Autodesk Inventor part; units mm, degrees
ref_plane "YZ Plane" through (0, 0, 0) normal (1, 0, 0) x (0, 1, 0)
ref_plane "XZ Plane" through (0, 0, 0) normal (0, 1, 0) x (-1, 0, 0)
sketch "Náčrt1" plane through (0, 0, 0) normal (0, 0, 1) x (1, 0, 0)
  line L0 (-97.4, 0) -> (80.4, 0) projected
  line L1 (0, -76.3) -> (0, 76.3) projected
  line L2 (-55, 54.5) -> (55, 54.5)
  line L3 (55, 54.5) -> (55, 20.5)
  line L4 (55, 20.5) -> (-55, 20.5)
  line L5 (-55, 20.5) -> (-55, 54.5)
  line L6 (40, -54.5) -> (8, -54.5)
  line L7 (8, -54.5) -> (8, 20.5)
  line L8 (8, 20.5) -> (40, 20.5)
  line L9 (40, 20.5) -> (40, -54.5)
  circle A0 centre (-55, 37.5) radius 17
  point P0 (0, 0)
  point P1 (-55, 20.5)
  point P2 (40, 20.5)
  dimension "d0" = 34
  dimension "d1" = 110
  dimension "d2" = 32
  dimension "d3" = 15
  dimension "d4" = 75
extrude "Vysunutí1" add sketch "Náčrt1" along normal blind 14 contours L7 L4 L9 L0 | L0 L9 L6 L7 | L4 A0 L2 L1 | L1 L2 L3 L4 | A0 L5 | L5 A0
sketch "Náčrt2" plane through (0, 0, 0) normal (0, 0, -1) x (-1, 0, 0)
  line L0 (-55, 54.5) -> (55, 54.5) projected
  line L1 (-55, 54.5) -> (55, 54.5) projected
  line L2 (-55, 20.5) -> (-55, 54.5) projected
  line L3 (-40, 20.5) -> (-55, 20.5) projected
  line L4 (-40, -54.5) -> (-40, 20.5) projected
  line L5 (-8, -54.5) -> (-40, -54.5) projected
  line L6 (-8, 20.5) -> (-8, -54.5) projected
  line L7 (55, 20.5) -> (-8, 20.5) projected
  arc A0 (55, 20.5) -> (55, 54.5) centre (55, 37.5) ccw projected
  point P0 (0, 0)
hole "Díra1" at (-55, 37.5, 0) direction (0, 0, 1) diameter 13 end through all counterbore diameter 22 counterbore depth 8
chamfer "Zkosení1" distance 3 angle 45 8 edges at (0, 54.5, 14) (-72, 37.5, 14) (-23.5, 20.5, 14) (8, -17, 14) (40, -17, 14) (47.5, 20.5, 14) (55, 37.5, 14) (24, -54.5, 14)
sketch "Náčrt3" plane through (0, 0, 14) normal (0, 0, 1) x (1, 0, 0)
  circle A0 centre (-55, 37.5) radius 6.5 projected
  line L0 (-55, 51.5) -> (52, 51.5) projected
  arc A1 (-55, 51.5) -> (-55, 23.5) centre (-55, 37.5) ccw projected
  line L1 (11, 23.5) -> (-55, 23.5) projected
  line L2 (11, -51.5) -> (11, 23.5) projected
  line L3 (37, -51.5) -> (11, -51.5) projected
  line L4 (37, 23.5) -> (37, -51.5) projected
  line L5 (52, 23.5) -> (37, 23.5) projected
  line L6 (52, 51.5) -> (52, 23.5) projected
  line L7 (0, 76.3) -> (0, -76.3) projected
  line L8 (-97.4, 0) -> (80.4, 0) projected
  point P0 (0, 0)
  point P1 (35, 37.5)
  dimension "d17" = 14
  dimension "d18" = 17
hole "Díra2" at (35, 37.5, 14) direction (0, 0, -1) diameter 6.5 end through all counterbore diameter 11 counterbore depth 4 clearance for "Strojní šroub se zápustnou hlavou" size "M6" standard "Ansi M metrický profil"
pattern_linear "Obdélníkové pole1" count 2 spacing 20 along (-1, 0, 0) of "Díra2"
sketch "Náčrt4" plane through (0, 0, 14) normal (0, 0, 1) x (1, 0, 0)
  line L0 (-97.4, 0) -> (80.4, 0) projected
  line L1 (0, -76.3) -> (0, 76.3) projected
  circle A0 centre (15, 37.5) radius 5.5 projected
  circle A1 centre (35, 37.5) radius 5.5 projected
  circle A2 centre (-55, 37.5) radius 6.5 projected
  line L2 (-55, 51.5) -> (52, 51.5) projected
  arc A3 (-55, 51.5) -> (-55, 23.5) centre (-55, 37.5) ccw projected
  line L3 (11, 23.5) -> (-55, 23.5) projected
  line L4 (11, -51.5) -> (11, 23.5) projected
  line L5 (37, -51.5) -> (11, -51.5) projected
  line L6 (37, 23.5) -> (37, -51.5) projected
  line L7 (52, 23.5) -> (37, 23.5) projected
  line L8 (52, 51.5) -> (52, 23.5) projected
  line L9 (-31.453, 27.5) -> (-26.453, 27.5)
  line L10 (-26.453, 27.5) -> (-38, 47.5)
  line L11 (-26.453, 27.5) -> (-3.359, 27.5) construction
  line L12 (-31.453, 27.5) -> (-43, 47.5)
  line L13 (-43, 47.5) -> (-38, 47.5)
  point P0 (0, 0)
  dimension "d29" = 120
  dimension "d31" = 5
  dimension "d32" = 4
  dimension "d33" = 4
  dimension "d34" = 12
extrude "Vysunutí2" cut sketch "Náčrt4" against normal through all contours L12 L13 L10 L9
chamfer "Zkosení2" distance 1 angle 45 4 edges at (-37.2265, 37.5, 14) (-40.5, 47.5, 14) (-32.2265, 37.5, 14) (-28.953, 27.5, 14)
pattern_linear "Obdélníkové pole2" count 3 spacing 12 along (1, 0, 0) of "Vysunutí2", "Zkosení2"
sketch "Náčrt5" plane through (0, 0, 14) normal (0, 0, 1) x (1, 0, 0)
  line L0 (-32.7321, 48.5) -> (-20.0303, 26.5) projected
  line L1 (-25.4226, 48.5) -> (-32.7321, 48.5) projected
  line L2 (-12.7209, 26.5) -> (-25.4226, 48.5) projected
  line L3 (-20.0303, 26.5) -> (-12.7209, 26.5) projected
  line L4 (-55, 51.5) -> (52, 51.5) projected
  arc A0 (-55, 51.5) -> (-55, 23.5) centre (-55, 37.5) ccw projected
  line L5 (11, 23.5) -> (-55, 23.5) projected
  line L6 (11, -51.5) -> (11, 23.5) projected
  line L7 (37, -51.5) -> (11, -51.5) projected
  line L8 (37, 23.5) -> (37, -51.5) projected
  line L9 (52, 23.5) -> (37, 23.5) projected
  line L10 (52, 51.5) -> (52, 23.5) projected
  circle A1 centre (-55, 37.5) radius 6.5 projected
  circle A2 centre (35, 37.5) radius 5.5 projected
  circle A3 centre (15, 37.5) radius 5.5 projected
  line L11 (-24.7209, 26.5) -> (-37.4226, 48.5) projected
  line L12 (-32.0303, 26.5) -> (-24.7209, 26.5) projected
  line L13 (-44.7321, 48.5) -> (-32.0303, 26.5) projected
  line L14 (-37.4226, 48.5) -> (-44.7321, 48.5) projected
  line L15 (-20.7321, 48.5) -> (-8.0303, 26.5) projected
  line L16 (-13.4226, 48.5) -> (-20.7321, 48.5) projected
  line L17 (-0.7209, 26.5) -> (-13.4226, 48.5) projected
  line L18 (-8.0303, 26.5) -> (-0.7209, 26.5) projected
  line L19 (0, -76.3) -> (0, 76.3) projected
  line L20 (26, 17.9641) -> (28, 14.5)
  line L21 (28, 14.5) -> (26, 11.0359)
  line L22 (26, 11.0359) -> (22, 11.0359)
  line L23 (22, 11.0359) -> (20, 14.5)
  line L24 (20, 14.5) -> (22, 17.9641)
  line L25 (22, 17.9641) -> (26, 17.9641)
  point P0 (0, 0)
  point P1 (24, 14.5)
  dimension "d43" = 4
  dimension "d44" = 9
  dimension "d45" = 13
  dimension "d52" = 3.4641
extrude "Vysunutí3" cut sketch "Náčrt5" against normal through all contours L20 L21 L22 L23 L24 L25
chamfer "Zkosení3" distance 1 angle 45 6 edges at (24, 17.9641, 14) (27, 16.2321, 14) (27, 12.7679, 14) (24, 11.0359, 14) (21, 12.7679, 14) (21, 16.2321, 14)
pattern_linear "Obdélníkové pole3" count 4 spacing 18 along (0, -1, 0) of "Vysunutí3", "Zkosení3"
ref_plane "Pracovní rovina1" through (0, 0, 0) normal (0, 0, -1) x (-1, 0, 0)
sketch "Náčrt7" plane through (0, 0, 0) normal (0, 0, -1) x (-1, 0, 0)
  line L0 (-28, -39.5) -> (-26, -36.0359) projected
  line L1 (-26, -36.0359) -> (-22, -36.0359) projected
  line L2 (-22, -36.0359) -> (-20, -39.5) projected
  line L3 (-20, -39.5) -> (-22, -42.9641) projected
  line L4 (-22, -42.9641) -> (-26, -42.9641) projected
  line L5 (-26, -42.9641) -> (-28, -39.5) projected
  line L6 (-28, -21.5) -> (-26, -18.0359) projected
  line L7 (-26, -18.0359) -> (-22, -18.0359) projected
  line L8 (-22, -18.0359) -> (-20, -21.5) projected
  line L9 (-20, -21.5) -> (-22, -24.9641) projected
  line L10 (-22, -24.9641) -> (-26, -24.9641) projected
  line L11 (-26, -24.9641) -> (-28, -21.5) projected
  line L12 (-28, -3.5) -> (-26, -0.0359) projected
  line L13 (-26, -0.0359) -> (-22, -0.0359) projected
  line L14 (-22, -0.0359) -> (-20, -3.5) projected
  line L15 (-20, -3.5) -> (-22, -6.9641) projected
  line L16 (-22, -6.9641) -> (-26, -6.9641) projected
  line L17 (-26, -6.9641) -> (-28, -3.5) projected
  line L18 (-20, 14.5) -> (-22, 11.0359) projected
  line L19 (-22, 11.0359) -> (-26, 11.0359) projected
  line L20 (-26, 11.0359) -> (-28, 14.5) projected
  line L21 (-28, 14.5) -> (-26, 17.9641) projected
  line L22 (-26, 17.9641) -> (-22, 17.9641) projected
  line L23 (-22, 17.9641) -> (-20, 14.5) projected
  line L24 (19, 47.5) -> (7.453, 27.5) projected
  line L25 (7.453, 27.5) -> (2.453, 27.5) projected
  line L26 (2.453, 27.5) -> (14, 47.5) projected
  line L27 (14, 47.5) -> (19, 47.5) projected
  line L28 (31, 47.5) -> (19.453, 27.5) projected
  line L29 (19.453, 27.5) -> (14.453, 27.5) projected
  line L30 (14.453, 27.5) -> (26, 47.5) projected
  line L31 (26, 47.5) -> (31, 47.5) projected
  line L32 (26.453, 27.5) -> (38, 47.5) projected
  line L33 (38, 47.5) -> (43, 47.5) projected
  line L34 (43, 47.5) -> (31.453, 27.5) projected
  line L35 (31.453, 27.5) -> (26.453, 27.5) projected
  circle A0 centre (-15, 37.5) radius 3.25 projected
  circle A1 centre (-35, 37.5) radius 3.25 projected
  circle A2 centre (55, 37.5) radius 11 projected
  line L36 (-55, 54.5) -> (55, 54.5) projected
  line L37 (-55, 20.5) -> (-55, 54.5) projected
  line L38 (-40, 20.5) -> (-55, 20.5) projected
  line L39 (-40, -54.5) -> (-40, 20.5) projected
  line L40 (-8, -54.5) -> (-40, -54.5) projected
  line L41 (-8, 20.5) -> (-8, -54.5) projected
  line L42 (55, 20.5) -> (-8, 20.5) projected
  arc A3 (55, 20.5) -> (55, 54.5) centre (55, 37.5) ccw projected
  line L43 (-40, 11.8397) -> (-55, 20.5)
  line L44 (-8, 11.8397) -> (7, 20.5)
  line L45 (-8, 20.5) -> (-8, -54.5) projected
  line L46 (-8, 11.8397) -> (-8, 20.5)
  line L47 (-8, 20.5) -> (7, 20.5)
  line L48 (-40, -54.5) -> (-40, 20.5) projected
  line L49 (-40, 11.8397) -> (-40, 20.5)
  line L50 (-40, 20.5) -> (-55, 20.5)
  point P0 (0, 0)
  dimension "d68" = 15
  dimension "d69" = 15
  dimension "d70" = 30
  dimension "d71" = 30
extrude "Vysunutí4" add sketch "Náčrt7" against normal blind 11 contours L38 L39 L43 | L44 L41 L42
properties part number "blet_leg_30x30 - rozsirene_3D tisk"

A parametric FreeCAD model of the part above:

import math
import FreeCAD as App
import Part
import Sketcher
from FreeCAD import Vector
Q = App.Units.Quantity


def edges_at(feature, points):
    """Names of the edges that pass closest to the given points."""
    edges = feature.Shape.Edges
    near = lambda p: min(range(len(edges)), key=lambda i: edges[i].distToShape(Part.Vertex(*p))[0])
    return sorted({f"Edge{near(p) + 1}" for p in points})


def add_polygon(sketch, points):
    """Adds a closed chain of lines whose ends are joined by coincident constraints."""
    first, n = sketch.GeometryCount, len(points)
    for a, b in zip(points, points[1:] + points[:1]):
        sketch.addGeometry(Part.LineSegment(App.Vector(*a, 0), App.Vector(*b, 0)), False)
    for i in range(n):
        sketch.addConstraint(Sketcher.Constraint("Coincident", first + i, 2, first + (i + 1) % n, 1))

doc = App.newDocument("Part")
body = doc.addObject("PartDesign::Body", "Body")

# Sketch on XY plane
sketch1 = body.newObject("Sketcher::SketchObject", "Sketch")
sketch1.AttachmentSupport = (doc.getObject("XY_Plane"), [""])
sketch1.MapMode = "FlatFace"
sketch1.addGeometry(Part.LineSegment(Vector(8, 20, 0), Vector(8, -54, 0)), False)
sketch1.addGeometry(Part.LineSegment(Vector(8, -54, 0), Vector(40, -54, 0)), False)
sketch1.addGeometry(Part.LineSegment(Vector(40, -54, 0), Vector(40, 20, 0)), False)
sketch1.addGeometry(Part.LineSegment(Vector(40, 20, 0), Vector(55, 20, 0)), False)
sketch1.addGeometry(Part.LineSegment(Vector(55, 20, 0), Vector(55, 54, 0)), False)
sketch1.addGeometry(Part.LineSegment(Vector(55, 54, 0), Vector(-55, 54, 0)), False)
sketch1.addGeometry(Part.ArcOfCircle(Part.Circle(Vector(-55, 38, 0), Vector(0, 0, 1), 17), math.radians(90), math.radians(270)), False)
sketch1.addGeometry(Part.LineSegment(Vector(-55, 20, 0), Vector(8, 20, 0)), False)
sketch1.addConstraint(Sketcher.Constraint("Coincident", 0, 2, 1, 1))
sketch1.addConstraint(Sketcher.Constraint("Coincident", 1, 2, 2, 1))
sketch1.addConstraint(Sketcher.Constraint("Coincident", 2, 2, 3, 1))
sketch1.addConstraint(Sketcher.Constraint("Coincident", 3, 2, 4, 1))
sketch1.addConstraint(Sketcher.Constraint("Coincident", 4, 2, 5, 1))
sketch1.addConstraint(Sketcher.Constraint("Tangent", 5, 2, 6, 1))
sketch1.addConstraint(Sketcher.Constraint("Tangent", 6, 2, 7, 1))
sketch1.addConstraint(Sketcher.Constraint("Coincident", 7, 2, 0, 1))
sketch1.addConstraint(Sketcher.Constraint("Vertical", 0))
sketch1.addConstraint(Sketcher.Constraint("Horizontal", 1))
sketch1.addConstraint(Sketcher.Constraint("Vertical", 2))
sketch1.addConstraint(Sketcher.Constraint("Horizontal", 3))
sketch1.addConstraint(Sketcher.Constraint("Vertical", 4))
sketch1.addConstraint(Sketcher.Constraint("Horizontal", 5))
sketch1.addConstraint(Sketcher.Constraint("Horizontal", 7))
sketch1.addConstraint(Sketcher.Constraint("Symmetric", 3, 2, 6, 2, -2))
sketch1.addConstraint(Sketcher.Constraint("Radius", 6, 17.0))
sketch1.addConstraint(Sketcher.Constraint("DistanceX", 1, 1, 1, 2, 32.0))
sketch1.addConstraint(Sketcher.Constraint("DistanceX", 3, 1, 3, 2, 15.0))
sketch1.addConstraint(Sketcher.Constraint("DistanceX", 5, 2, 5, 1, 110.0))
sketch1.addConstraint(Sketcher.Constraint("DistanceY", 0, 2, 0, 1, 75.0))
sketch1.addConstraint(Sketcher.Constraint("DistanceY", -1, 1, 6, 3, 37.5))
pad1 = body.newObject("PartDesign::Pad", "Pad")
pad1.Profile = sketch1
pad1.Length = 14

# Sketch on XY plane
sketch2 = body.newObject("Sketcher::SketchObject", "Sketch001")
sketch2.AttachmentSupport = (doc.getObject("XY_Plane"), [""])
sketch2.MapMode = "FlatFace"
sketch2.addGeometry(Part.Circle(Vector(-55, 38, 0), Vector(0, 0, 1), 6), False)
sketch2.addConstraint(Sketcher.Constraint("Diameter", 0, 13.0))
sketch2.addConstraint(Sketcher.Constraint("DistanceX", 0, 3, -1, 1, 55.0))
sketch2.addConstraint(Sketcher.Constraint("DistanceY", -1, 1, 0, 3, 37.5))
doc.recompute()
hole = body.newObject("PartDesign::Hole", "Hole")
hole.Profile = sketch2
hole.ThreadType = "None"
hole.Diameter = 13
hole.DepthType = "ThroughAll"
hole.HoleCutType = "Counterbore"
hole.HoleCutDiameter = 22
hole.HoleCutDepth = 8
hole.Reversed = True
doc.recompute()

chamfer = body.newObject("PartDesign::Chamfer", "Chamfer")
chamfer.Base = (hole, edges_at(hole, [
    (0, 54.5, 14),
    (-72, 37.5, 14),
    (-23.5, 20.5, 14),
    (8, -17, 14),
    (40, -17, 14),
    (47.5, 20.5, 14),
    (55, 37.5, 14),
    (24, -54.5, 14),
]))
chamfer.Size = 3

# Sketch on XY plane
sketch3 = body.newObject("Sketcher::SketchObject", "Sketch002")
sketch3.AttachmentSupport = (doc.getObject("XY_Plane"), [""])
sketch3.MapMode = "FlatFace"
sketch3.AttachmentOffset = App.Placement(Vector(0, 0, 14), App.Rotation())
sketch3.addGeometry(Part.Circle(Vector(35, 37.5, 0), Vector(0, 0, 1), 3.2), False)
sketch3.addConstraint(Sketcher.Constraint("Diameter", 0, 6.5))
sketch3.addConstraint(Sketcher.Constraint("DistanceX", -1, 1, 0, 3, 35.0))
sketch3.addConstraint(Sketcher.Constraint("DistanceY", -1, 1, 0, 3, 37.5))
doc.recompute()
hole2 = body.newObject("PartDesign::Hole", "Hole001")
hole2.Profile = sketch3
hole2.ThreadType = "None"
hole2.Diameter = 6.5
hole2.DepthType = "ThroughAll"
hole2.HoleCutType = "Counterbore"
hole2.HoleCutDiameter = 11
hole2.HoleCutDepth = 4
doc.recompute()

linearpattern = body.newObject("PartDesign::LinearPattern", "LinearPattern")
linearpattern.Originals = [hole2]
linearpattern.Direction = (doc.getObject("X_Axis"), [""])
linearpattern.Mode = "offset"
linearpattern.Offset = 20
linearpattern.Occurrences = 2
linearpattern.Reversed = True
body.Tip = linearpattern

# Sketch on XY plane
sketch4 = body.newObject("Sketcher::SketchObject", "Sketch003")
sketch4.AttachmentSupport = (doc.getObject("XY_Plane"), [""])
sketch4.MapMode = "FlatFace"
sketch4.AttachmentOffset = App.Placement(Vector(0, 0, 14), App.Rotation())
add_polygon(sketch4, [(-43, 48), (-31, 28), (-26, 28), (-38, 48)])  # lines 0-3
sketch4.addConstraint(Sketcher.Constraint("Horizontal", 1))
sketch4.addConstraint(Sketcher.Constraint("Horizontal", 3))
sketch4.addConstraint(Sketcher.Constraint("Parallel", 0, 2))
sketch4.addConstraint(Sketcher.Constraint("DistanceX", 1, 1, 1, 2, 5.0))
sketch4.addConstraint(Sketcher.Constraint("Angle", 2, Q("120 deg")))
sketch4.addConstraint(Sketcher.Constraint("DistanceX", 2, 2, -1, 1, 38.0))
sketch4.addConstraint(Sketcher.Constraint("DistanceY", 0, 2, 2, 2, 20.0))
sketch4.addConstraint(Sketcher.Constraint("DistanceY", -1, 1, 0, 2, 27.5))
pocket1 = body.newObject("PartDesign::Pocket", "Pocket")
pocket1.Profile = sketch4
pocket1.Type = "ThroughAll"
doc.recompute()

chamfer2 = body.newObject("PartDesign::Chamfer", "Chamfer001")
chamfer2.Base = (pocket1, edges_at(pocket1, [
    (-37.227, 37.5, 14),
    (-40.5, 47.5, 14),
    (-32.227, 37.5, 14),
    (-28.953, 27.5, 14),
]))
chamfer2.Size = 1
doc.recompute()

linearpattern2 = body.newObject("PartDesign::LinearPattern", "LinearPattern001")
linearpattern2.Originals = [pocket1, chamfer2]
linearpattern2.Direction = (doc.getObject("X_Axis"), [""])
linearpattern2.Mode = "offset"
linearpattern2.Offset = 12
linearpattern2.Occurrences = 3
body.Tip = linearpattern2

# Sketch on XY plane
sketch5 = body.newObject("Sketcher::SketchObject", "Sketch004")
sketch5.AttachmentSupport = (doc.getObject("XY_Plane"), [""])
sketch5.MapMode = "FlatFace"
sketch5.AttachmentOffset = App.Placement(Vector(0, 0, 14), App.Rotation())
add_polygon(sketch5, [(28, 14.5), (26, 18), (22, 18), (20, 14.5), (22, 11), (26, 11)])  # lines 0-5
sketch5.addConstraint(Sketcher.Constraint("Horizontal", 1))
sketch5.addConstraint(Sketcher.Constraint("Horizontal", 4))
sketch5.addConstraint(Sketcher.Constraint("Parallel", 0, 3))
sketch5.addConstraint(Sketcher.Constraint("Parallel", 2, 5))
sketch5.addConstraint(Sketcher.Constraint("Horizontal", 2, 2, 5, 2))
sketch5.addConstraint(Sketcher.Constraint("Vertical", 1, 2, 3, 2))
sketch5.addConstraint(Sketcher.Constraint("Vertical", 0, 2, 4, 2))
sketch5.addConstraint(Sketcher.Constraint("DistanceX", 1, 2, 1, 1, 4.0))
sketch5.addConstraint(Sketcher.Constraint("Distance", 0, 4.0))
sketch5.addConstraint(Sketcher.Constraint("Angle", 0, Q("120 deg")))
sketch5.addConstraint(Sketcher.Constraint("DistanceX", -1, 1, 0, 2, 26.0))
sketch5.addConstraint(Sketcher.Constraint("DistanceY", -1, 1, 2, 2, 14.5))
pocket2 = body.newObject("PartDesign::Pocket", "Pocket001")
pocket2.Profile = sketch5
pocket2.Type = "ThroughAll"
doc.recompute()

chamfer3 = body.newObject("PartDesign::Chamfer", "Chamfer002")
chamfer3.Base = (pocket2, edges_at(pocket2, [
    (24, 17.964, 14),
    (27, 16.232, 14),
    (27, 12.768, 14),
    (24, 11.036, 14),
    (21, 12.768, 14),
    (21, 16.232, 14),
]))
chamfer3.Size = 1
doc.recompute()

linearpattern3 = body.newObject("PartDesign::LinearPattern", "LinearPattern002")
linearpattern3.Originals = [pocket2, chamfer3]
linearpattern3.Direction = (doc.getObject("Y_Axis"), [""])
linearpattern3.Mode = "offset"
linearpattern3.Offset = 18
linearpattern3.Occurrences = 4
linearpattern3.Reversed = True
body.Tip = linearpattern3

# Sketch on XY plane
sketch6 = body.newObject("Sketcher::SketchObject", "Sketch005")
sketch6.AttachmentSupport = (doc.getObject("XY_Plane"), [""])
sketch6.MapMode = "FlatFace"
add_polygon(sketch6, [(40, 20), (55, 20), (40, 12)])  # lines 0-2
add_polygon(sketch6, [(8, 12), (-7, 20), (8, 20)])  # lines 3-5
sketch6.addConstraint(Sketcher.Constraint("Horizontal", 0))
sketch6.addConstraint(Sketcher.Constraint("Vertical", 2))
sketch6.addConstraint(Sketcher.Constraint("Horizontal", 4))
sketch6.addConstraint(Sketcher.Constraint("Vertical", 5))
sketch6.addConstraint(Sketcher.Constraint("Horizontal", 2, 2, 3, 2))
sketch6.addConstraint(Sketcher.Constraint("Horizontal", 1, 2, 5, 2))
sketch6.addConstraint(Sketcher.Constraint("Equal", 0, 4))
sketch6.addConstraint(Sketcher.Constraint("DistanceX", 0, 1, 0, 2, 15.0))
sketch6.addConstraint(Sketcher.Constraint("Angle", 1, Q("-149.9999 deg")))
sketch6.addConstraint(Sketcher.Constraint("DistanceX", -1, 1, 0, 2, 55.0))
sketch6.addConstraint(Sketcher.Constraint("DistanceX", 3, 2, -1, 1, 7.0))
sketch6.addConstraint(Sketcher.Constraint("DistanceY", -1, 1, 0, 2, 20.5))
pad2 = body.newObject("PartDesign::Pad", "Pad001")
pad2.Profile = sketch6
pad2.Length = 11

doc.recompute()
